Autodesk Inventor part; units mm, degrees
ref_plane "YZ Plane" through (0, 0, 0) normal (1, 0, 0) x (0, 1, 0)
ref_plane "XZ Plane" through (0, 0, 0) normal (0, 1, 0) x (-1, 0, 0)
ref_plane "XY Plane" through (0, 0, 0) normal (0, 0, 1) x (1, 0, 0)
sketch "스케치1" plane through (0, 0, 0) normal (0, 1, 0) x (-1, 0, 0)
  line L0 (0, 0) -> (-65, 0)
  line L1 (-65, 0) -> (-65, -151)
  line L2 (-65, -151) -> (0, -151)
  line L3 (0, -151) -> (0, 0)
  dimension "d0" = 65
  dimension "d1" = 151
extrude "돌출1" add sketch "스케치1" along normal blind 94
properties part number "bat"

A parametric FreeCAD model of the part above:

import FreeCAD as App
import Part
import Sketcher
Q = App.Units.Quantity


def add_polygon(sketch, points):
    """Adds a closed chain of lines whose ends are joined by coincident constraints."""
    first, n = sketch.GeometryCount, len(points)
    for a, b in zip(points, points[1:] + points[:1]):
        sketch.addGeometry(Part.LineSegment(App.Vector(*a, 0), App.Vector(*b, 0)), False)
    for i in range(n):
        sketch.addConstraint(Sketcher.Constraint("Coincident", first + i, 2, first + (i + 1) % n, 1))

doc = App.newDocument("Part")
body = doc.addObject("PartDesign::Body", "Body")

# Sketch on XZ plane
sketch1 = body.newObject("Sketcher::SketchObject", "Sketch")
sketch1.AttachmentSupport = (doc.getObject("XZ_Plane"), [""])
sketch1.MapMode = "FlatFace"
add_polygon(sketch1, [(0, -151), (0, 0), (65, 0), (65, -151)])  # lines 0-3
sketch1.addConstraint(Sketcher.Constraint("Vertical", 0))
sketch1.addConstraint(Sketcher.Constraint("Horizontal", 1))
sketch1.addConstraint(Sketcher.Constraint("Vertical", 2))
sketch1.addConstraint(Sketcher.Constraint("Horizontal", 3))
sketch1.addConstraint(Sketcher.Constraint("Coincident", 0, 2, -1, 1))
sketch1.addConstraint(Sketcher.Constraint("DistanceX", 1, 1, 1, 2, Q("65 mm")))
sketch1.addConstraint(Sketcher.Constraint("DistanceY", 0, 1, 0, 2, Q("151 mm")))
pad1 = body.newObject("PartDesign::Pad", "Pad")
pad1.Profile = sketch1
pad1.Length = 94
pad1.Reversed = True

doc.recompute()
